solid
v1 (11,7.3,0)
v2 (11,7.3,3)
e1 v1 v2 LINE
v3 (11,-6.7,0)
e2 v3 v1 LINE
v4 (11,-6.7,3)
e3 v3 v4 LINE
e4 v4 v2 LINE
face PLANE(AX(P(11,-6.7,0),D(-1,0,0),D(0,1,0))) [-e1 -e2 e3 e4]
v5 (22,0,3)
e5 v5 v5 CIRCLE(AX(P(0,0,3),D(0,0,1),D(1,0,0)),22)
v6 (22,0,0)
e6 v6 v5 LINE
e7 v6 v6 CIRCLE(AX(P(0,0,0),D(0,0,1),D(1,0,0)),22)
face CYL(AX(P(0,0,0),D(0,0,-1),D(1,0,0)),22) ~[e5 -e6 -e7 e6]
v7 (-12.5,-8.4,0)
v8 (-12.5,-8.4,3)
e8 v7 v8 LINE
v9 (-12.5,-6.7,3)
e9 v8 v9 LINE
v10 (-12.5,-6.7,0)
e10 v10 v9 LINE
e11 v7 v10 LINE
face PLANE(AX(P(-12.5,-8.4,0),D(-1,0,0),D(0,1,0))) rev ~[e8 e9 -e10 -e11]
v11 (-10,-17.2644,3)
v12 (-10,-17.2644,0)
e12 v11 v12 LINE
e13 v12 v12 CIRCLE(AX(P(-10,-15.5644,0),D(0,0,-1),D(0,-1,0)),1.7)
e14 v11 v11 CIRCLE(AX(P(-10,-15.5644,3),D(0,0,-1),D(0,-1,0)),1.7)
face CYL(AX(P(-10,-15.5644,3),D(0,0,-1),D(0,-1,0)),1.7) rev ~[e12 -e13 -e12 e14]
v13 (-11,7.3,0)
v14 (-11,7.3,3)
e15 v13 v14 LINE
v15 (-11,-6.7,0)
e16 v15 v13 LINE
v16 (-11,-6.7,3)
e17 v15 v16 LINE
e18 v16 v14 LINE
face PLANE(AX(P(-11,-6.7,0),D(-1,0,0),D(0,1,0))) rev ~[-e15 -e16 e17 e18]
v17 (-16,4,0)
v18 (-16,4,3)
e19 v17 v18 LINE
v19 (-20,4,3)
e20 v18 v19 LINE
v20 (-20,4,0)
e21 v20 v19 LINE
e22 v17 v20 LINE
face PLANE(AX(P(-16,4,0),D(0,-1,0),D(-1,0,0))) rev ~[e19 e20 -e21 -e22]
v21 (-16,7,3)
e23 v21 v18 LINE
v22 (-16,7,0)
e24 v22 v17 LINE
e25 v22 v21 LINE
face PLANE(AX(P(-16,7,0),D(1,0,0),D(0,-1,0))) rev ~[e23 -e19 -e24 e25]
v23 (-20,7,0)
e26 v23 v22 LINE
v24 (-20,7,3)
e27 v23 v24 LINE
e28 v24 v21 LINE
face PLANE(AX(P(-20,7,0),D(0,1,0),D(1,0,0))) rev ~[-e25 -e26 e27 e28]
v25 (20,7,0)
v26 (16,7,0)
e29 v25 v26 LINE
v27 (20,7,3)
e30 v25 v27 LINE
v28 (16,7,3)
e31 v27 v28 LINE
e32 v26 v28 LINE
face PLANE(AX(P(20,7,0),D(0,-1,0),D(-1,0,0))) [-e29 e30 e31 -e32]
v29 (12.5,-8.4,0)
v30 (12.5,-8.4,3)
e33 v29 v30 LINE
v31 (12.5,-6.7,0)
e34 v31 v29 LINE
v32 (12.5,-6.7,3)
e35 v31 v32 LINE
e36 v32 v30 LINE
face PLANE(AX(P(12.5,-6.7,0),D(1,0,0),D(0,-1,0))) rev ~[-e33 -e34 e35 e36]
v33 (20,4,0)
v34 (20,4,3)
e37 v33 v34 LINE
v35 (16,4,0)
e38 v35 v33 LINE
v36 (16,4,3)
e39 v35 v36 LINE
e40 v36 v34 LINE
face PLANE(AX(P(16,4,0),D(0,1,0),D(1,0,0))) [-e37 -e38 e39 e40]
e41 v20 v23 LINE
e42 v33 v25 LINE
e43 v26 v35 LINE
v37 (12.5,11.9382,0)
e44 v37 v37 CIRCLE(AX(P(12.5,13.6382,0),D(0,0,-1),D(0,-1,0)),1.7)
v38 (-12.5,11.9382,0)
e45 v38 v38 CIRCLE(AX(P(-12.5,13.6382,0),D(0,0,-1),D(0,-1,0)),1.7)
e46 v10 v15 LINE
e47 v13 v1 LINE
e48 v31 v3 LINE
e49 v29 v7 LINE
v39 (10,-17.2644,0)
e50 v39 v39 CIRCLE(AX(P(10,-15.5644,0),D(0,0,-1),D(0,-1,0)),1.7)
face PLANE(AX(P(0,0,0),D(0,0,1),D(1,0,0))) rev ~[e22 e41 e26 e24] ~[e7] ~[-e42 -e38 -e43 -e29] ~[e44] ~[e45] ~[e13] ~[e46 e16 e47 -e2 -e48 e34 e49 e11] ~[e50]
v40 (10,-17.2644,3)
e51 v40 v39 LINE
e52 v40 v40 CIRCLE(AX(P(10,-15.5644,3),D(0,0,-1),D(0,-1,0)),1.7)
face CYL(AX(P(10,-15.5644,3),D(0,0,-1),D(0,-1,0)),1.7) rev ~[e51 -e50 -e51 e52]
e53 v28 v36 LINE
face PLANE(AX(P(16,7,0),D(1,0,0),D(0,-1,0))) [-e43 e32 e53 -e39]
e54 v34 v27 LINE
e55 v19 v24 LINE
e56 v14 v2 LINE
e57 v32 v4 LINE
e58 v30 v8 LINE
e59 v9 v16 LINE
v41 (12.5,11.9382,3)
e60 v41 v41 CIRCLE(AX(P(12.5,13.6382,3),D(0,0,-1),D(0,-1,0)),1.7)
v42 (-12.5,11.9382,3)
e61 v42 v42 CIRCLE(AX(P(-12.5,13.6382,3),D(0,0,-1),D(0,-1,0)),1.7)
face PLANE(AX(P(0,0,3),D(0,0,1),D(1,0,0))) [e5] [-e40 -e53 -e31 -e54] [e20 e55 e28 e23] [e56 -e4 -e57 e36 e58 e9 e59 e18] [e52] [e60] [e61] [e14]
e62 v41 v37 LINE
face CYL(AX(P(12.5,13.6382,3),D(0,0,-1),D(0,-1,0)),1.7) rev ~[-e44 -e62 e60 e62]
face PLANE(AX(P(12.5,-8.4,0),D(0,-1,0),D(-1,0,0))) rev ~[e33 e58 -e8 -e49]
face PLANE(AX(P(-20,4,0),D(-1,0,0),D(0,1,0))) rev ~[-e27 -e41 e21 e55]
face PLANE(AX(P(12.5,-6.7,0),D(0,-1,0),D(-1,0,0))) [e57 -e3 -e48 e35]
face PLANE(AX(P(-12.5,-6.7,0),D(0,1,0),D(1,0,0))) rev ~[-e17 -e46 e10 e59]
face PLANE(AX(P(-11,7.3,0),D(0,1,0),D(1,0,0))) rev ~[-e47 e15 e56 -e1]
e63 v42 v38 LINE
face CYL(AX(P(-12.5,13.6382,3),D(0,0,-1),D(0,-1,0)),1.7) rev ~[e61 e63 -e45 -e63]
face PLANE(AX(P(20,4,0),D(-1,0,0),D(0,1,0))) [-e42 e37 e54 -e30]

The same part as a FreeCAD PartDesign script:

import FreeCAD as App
import Part
import Sketcher
from FreeCAD import Vector

doc = App.newDocument("Part")
params = doc.addObject("Spreadsheet::Sheet", "Params")
for row, (alias, value) in enumerate([
    ("sketch1_diameter", "44 mm"),
    ("sketch1_width", "25 mm"),
    ("sketch1_width2", "4 mm"),
    ("sketch1_height", "14 mm"),
    ("sketch1_height2", "3 mm"),
    ("pad1_length", "3 mm"),
    ("sketch2_diameter", "3.4 mm"),
    ("hole_diameter", "3.4 mm"),
], start=1):
    params.set(f"A{row}", alias)
    params.set(f"B{row}", "=" + value)
    params.setAlias(f"B{row}", alias)

body = doc.addObject("PartDesign::Body", "Body")

# Sketch on XY plane
sketch1 = doc.addObject("Sketcher::SketchObject", "Sketch")
body.addObject(sketch1)
sketch1.AttachmentSupport = (doc.XY_Plane, [""])
sketch1.MapMode = "FlatFace"
sketch1.addGeometry(Part.Circle(Vector(0, 0, 0), Vector(0, 0, 1), 22), False)
sketch1.addGeometry(Part.LineSegment(Vector(11, -6.7, 0), Vector(12.5, -6.7, 0)), False)
sketch1.addGeometry(Part.LineSegment(Vector(12.5, -6.7, 0), Vector(12.5, -8.4, 0)), False)
sketch1.addGeometry(Part.LineSegment(Vector(12.5, -8.4, 0), Vector(-12.5, -8.4, 0)), False)
sketch1.addGeometry(Part.LineSegment(Vector(-12.5, -8.4, 0), Vector(-12.5, -6.7, 0)), False)
sketch1.addGeometry(Part.LineSegment(Vector(-12.5, -6.7, 0), Vector(-11, -6.7, 0)), False)
sketch1.addGeometry(Part.LineSegment(Vector(-11, -6.7, 0), Vector(-11, 7.3, 0)), False)
sketch1.addGeometry(Part.LineSegment(Vector(-11, 7.3, 0), Vector(11, 7.3, 0)), False)
sketch1.addGeometry(Part.LineSegment(Vector(11, 7.3, 0), Vector(11, -6.7, 0)), False)
sketch1.addGeometry(Part.LineSegment(Vector(-20, 4, 0), Vector(-20, 7, 0)), False)
sketch1.addGeometry(Part.LineSegment(Vector(-20, 7, 0), Vector(-16, 7, 0)), False)
sketch1.addGeometry(Part.LineSegment(Vector(-16, 7, 0), Vector(-16, 4, 0)), False)
sketch1.addGeometry(Part.LineSegment(Vector(-16, 4, 0), Vector(-20, 4, 0)), False)
sketch1.addGeometry(Part.LineSegment(Vector(16, 7, 0), Vector(20, 7, 0)), False)
sketch1.addGeometry(Part.LineSegment(Vector(20, 7, 0), Vector(20, 4, 0)), False)
sketch1.addGeometry(Part.LineSegment(Vector(20, 4, 0), Vector(16, 4, 0)), False)
sketch1.addGeometry(Part.LineSegment(Vector(16, 4, 0), Vector(16, 7, 0)), False)
sketch1.addConstraint(Sketcher.Constraint("Coincident", 1, 2, 2, 1))
sketch1.addConstraint(Sketcher.Constraint("Coincident", 2, 2, 3, 1))
sketch1.addConstraint(Sketcher.Constraint("Coincident", 3, 2, 4, 1))
sketch1.addConstraint(Sketcher.Constraint("Coincident", 4, 2, 5, 1))
sketch1.addConstraint(Sketcher.Constraint("Coincident", 5, 2, 6, 1))
sketch1.addConstraint(Sketcher.Constraint("Coincident", 6, 2, 7, 1))
sketch1.addConstraint(Sketcher.Constraint("Coincident", 7, 2, 8, 1))
sketch1.addConstraint(Sketcher.Constraint("Coincident", 8, 2, 1, 1))
sketch1.addConstraint(Sketcher.Constraint("Coincident", 9, 2, 10, 1))
sketch1.addConstraint(Sketcher.Constraint("Coincident", 10, 2, 11, 1))
sketch1.addConstraint(Sketcher.Constraint("Coincident", 11, 2, 12, 1))
sketch1.addConstraint(Sketcher.Constraint("Coincident", 12, 2, 9, 1))
sketch1.addConstraint(Sketcher.Constraint("Coincident", 13, 2, 14, 1))
sketch1.addConstraint(Sketcher.Constraint("Coincident", 14, 2, 15, 1))
sketch1.addConstraint(Sketcher.Constraint("Coincident", 15, 2, 16, 1))
sketch1.addConstraint(Sketcher.Constraint("Coincident", 16, 2, 13, 1))
sketch1.addConstraint(Sketcher.Constraint("Horizontal", 1))
sketch1.addConstraint(Sketcher.Constraint("Vertical", 2))
sketch1.addConstraint(Sketcher.Constraint("Horizontal", 3))
sketch1.addConstraint(Sketcher.Constraint("Vertical", 4))
sketch1.addConstraint(Sketcher.Constraint("Horizontal", 5))
sketch1.addConstraint(Sketcher.Constraint("Vertical", 6))
sketch1.addConstraint(Sketcher.Constraint("Horizontal", 7))
sketch1.addConstraint(Sketcher.Constraint("Vertical", 8))
sketch1.addConstraint(Sketcher.Constraint("Vertical", 9))
sketch1.addConstraint(Sketcher.Constraint("Horizontal", 10))
sketch1.addConstraint(Sketcher.Constraint("Vertical", 11))
sketch1.addConstraint(Sketcher.Constraint("Horizontal", 12))
sketch1.addConstraint(Sketcher.Constraint("Horizontal", 13))
sketch1.addConstraint(Sketcher.Constraint("Vertical", 14))
sketch1.addConstraint(Sketcher.Constraint("Horizontal", 15))
sketch1.addConstraint(Sketcher.Constraint("Vertical", 16))
sketch1.addConstraint(Sketcher.Constraint("Coincident", 0, 3, -1, 1))
sketch1.addConstraint(Sketcher.Constraint("Symmetric", 1, 2, 4, 2, -2))
sketch1.addConstraint(Sketcher.Constraint("Symmetric", 9, 2, 13, 2, -2))
sketch1.addConstraint(Sketcher.Constraint("Symmetric", 11, 2, 15, 2, -2))
sketch1.addConstraint(Sketcher.Constraint("Equal", 1, 5))
sketch1.addConstraint(Sketcher.Constraint("Diameter", 0, 44.0))
sketch1.addConstraint(Sketcher.Constraint("DistanceX", 3, 2, 3, 1, 25.0))
sketch1.addConstraint(Sketcher.Constraint("DistanceX", 10, 1, 10, 2, 4.0))
sketch1.addConstraint(Sketcher.Constraint("DistanceY", 6, 1, 6, 2, 14.0))
sketch1.addConstraint(Sketcher.Constraint("DistanceY", 9, 1, 9, 2, 3.0))
sketch1.addConstraint(Sketcher.Constraint("DistanceX", 1, 1, 1, 2, 1.5))
sketch1.addConstraint(Sketcher.Constraint("DistanceY", 2, 2, 2, 1, 1.7))
sketch1.addConstraint(Sketcher.Constraint("DistanceY", -1, 1, 11, 2, 4.0))
sketch1.addConstraint(Sketcher.Constraint("DistanceY", 1, 2, -1, 1, 6.7))
sketch1.addConstraint(Sketcher.Constraint("DistanceX", 9, 2, -1, 1, 20.0))
sketch1.setExpression("Constraints[37]", "Params.sketch1_diameter")
sketch1.setExpression("Constraints[38]", "Params.sketch1_width")
sketch1.setExpression("Constraints[39]", "Params.sketch1_width2")
sketch1.setExpression("Constraints[40]", "Params.sketch1_height")
sketch1.setExpression("Constraints[41]", "Params.sketch1_height2")
pad1 = doc.addObject("PartDesign::Pad", "Pad")
body.addObject(pad1)
pad1.Profile = sketch1
pad1.setExpression("Length", "Params.pad1_length")

# Sketch on XY plane
sketch2 = doc.addObject("Sketcher::SketchObject", "Sketch001")
body.addObject(sketch2)
sketch2.AttachmentSupport = (doc.XY_Plane, [""])
sketch2.MapMode = "FlatFace"
sketch2.AttachmentOffset = App.Placement(Vector(0, 0, 3), App.Rotation())
sketch2.addGeometry(Part.Circle(Vector(-12.5, 13.6, 0), Vector(0, 0, 1), 1.7), False)
sketch2.addGeometry(Part.Circle(Vector(12.5, 13.6, 0), Vector(0, 0, 1), 1.7), False)
sketch2.addGeometry(Part.Circle(Vector(-10, -15.6, 0), Vector(0, 0, 1), 1.7), False)
sketch2.addGeometry(Part.Circle(Vector(10, -15.6, 0), Vector(0, 0, 1), 1.7), False)
sketch2.addConstraint(Sketcher.Constraint("Equal", 0, 1))
sketch2.addConstraint(Sketcher.Constraint("Equal", 1, 2))
sketch2.addConstraint(Sketcher.Constraint("Equal", 2, 3))
sketch2.addConstraint(Sketcher.Constraint("Symmetric", 0, 3, 1, 3, -2))
sketch2.addConstraint(Sketcher.Constraint("Symmetric", 2, 3, 3, 3, -2))
sketch2.addConstraint(Sketcher.Constraint("Diameter", 0, 3.4))
sketch2.addConstraint(Sketcher.Constraint("DistanceX", 2, 3, -1, 1, 10.0))
sketch2.addConstraint(Sketcher.Constraint("DistanceX", 0, 3, 1, 3, 25.0))
sketch2.addConstraint(Sketcher.Constraint("DistanceY", -1, 1, 0, 3, 13.6382))
sketch2.addConstraint(Sketcher.Constraint("DistanceY", 2, 3, -1, 1, 15.5644))
sketch2.setExpression("Constraints[5]", "Params.sketch2_diameter")
doc.recompute()
hole = doc.addObject("PartDesign::Hole", "Hole")
body.addObject(hole)
hole.Profile = sketch2
hole.ThreadType = "None"
hole.setExpression("Diameter", "Params.hole_diameter")
hole.DepthType = "ThroughAll"

doc.recompute()
